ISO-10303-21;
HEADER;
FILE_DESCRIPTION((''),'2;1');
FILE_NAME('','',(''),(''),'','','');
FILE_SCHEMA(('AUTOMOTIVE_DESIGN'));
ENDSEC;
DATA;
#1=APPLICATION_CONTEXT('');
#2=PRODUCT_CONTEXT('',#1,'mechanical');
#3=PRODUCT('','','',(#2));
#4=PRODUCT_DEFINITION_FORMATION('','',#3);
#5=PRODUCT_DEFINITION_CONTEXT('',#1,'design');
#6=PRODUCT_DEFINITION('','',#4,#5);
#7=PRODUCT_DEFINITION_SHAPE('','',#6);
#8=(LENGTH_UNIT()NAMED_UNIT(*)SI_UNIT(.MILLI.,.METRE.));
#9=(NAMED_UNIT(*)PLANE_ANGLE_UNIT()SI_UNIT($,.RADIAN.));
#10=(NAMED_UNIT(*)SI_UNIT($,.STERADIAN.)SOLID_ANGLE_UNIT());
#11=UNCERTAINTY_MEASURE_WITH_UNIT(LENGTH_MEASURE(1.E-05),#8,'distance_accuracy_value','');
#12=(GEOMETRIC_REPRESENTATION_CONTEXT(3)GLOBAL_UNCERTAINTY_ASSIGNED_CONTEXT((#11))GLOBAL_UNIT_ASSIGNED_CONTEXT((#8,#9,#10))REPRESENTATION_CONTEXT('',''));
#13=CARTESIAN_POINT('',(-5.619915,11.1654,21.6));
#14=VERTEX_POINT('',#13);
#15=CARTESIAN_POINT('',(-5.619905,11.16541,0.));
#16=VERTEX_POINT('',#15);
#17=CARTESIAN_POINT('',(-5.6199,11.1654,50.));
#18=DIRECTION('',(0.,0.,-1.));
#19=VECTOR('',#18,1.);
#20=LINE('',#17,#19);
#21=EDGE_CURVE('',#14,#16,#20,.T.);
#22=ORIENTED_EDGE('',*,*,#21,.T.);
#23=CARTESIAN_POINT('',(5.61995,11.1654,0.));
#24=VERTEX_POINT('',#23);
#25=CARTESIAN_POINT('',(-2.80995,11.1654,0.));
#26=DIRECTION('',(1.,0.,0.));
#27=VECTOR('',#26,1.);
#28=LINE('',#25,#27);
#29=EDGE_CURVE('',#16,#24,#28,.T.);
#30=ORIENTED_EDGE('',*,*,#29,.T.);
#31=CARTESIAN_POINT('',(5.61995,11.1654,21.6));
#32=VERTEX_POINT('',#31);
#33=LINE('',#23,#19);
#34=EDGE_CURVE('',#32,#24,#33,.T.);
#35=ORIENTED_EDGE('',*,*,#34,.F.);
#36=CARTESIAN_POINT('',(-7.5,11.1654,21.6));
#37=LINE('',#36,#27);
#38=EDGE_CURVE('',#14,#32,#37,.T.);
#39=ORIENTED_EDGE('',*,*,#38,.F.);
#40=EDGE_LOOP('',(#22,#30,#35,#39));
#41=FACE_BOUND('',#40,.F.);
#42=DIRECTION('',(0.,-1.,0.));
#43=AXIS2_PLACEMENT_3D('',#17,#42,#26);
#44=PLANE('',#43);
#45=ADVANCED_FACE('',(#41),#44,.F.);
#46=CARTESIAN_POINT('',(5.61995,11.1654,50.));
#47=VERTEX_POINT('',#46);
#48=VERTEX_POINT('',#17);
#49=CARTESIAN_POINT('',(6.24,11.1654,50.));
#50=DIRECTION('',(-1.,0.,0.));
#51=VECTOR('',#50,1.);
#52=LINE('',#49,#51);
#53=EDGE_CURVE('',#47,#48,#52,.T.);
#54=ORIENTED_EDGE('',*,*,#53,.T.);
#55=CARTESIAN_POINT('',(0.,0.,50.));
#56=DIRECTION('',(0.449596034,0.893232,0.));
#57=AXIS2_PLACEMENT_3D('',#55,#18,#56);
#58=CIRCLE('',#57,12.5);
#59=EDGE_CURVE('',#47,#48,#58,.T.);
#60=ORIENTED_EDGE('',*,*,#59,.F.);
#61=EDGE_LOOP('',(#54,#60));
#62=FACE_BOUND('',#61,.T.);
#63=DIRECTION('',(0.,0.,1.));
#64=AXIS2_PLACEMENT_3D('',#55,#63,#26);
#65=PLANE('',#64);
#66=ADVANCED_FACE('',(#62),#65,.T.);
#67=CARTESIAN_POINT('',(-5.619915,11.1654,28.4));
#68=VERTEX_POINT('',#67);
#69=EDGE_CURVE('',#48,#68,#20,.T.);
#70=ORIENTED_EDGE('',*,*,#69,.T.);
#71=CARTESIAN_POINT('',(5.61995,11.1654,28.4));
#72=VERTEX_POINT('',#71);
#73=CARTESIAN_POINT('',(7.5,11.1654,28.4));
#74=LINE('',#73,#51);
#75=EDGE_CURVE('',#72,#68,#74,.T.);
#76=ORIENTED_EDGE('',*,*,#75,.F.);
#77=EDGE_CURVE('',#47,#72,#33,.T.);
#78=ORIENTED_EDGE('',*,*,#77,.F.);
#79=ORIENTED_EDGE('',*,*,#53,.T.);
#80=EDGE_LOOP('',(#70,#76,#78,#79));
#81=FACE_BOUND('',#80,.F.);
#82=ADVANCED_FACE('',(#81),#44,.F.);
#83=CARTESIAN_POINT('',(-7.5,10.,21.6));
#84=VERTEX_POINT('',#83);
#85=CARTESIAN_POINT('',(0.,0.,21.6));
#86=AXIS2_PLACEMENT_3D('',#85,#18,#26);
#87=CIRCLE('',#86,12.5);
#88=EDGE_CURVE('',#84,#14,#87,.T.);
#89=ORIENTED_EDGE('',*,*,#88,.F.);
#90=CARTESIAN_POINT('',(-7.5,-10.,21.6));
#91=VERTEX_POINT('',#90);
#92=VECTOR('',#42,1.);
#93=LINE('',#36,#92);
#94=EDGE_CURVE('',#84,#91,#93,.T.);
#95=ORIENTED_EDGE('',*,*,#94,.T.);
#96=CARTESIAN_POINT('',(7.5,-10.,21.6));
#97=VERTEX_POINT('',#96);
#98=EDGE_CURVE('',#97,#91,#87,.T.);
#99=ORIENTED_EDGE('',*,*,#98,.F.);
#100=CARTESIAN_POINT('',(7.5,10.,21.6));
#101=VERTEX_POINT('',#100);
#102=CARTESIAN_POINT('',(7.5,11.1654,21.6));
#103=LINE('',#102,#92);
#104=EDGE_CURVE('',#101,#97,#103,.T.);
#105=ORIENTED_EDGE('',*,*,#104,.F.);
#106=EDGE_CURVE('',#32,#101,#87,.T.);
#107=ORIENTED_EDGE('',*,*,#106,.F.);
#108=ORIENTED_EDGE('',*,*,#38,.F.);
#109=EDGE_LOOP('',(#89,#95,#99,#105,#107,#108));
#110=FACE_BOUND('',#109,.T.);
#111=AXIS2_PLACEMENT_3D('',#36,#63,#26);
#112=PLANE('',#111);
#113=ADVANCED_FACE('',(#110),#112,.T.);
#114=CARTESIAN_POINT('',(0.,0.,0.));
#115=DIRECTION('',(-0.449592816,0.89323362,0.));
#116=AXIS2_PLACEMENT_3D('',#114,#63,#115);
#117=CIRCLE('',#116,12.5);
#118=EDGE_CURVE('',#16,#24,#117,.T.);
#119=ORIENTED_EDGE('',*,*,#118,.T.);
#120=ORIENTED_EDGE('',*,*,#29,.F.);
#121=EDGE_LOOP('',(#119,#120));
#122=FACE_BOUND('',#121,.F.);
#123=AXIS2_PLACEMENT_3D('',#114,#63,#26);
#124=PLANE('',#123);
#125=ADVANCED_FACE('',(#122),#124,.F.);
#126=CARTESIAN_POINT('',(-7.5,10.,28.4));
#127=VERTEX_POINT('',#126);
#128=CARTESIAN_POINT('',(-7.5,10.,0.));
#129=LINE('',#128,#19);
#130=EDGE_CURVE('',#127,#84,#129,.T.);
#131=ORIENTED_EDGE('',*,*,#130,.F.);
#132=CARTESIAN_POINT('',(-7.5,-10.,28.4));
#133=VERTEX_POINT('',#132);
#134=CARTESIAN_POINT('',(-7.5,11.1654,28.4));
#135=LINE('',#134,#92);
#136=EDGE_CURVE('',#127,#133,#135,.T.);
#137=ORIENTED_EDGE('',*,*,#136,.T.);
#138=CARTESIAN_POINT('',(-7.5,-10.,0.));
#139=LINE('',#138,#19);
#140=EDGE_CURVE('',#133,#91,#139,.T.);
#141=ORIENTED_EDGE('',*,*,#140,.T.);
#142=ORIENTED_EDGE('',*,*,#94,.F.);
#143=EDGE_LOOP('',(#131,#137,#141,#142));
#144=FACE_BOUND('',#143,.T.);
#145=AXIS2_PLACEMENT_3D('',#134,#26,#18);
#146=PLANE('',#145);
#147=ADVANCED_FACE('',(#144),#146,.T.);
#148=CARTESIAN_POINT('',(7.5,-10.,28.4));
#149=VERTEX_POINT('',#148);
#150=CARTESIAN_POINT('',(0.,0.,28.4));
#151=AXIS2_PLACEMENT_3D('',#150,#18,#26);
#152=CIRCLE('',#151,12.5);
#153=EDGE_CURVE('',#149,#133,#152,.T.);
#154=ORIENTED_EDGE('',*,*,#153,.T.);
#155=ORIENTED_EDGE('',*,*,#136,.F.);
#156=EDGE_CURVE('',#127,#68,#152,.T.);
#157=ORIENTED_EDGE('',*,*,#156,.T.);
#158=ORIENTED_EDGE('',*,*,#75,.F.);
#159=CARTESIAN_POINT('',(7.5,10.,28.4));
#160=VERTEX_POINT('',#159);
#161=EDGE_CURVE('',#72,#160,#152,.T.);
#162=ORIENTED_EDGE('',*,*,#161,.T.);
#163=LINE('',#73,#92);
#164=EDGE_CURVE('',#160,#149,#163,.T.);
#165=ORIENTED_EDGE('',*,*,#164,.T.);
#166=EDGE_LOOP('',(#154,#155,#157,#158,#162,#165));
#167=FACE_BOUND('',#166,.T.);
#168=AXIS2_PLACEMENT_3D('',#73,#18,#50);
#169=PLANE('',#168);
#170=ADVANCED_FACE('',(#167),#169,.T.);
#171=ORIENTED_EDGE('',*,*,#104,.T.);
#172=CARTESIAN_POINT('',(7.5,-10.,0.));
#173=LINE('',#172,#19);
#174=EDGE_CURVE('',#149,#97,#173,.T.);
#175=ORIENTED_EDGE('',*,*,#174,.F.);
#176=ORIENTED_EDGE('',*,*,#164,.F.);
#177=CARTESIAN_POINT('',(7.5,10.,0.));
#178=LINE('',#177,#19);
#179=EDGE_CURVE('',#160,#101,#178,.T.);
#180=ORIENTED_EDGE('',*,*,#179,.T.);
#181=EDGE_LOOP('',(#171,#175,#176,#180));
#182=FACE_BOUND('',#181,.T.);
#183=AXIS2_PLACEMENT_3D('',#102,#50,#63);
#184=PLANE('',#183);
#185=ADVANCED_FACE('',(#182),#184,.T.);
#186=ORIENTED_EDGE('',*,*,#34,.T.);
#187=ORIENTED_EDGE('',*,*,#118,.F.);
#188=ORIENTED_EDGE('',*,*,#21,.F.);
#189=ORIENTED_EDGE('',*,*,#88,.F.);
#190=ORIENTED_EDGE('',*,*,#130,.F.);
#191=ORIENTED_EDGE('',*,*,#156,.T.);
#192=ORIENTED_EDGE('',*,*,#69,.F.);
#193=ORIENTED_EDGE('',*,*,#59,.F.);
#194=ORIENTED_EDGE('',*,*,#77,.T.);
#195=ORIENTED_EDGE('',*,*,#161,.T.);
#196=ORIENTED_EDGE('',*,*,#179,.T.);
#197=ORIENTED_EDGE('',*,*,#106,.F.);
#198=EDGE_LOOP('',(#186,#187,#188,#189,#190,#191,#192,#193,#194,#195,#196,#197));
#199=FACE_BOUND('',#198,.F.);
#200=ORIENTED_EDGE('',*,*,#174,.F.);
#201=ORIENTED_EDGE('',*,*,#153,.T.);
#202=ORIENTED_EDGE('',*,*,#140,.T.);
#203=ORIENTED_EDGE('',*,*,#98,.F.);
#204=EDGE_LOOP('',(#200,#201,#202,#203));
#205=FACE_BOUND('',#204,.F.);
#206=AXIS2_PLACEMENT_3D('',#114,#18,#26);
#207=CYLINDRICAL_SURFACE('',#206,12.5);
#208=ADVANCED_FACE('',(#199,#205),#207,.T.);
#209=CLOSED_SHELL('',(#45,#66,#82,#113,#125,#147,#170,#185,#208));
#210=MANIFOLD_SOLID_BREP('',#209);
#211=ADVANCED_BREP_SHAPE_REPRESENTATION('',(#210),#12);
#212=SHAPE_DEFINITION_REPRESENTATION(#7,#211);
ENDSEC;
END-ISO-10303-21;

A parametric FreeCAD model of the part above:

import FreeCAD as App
import Part
import Sketcher


def add_polygon(sketch, points):
    """Adds a closed chain of lines whose ends are joined by coincident constraints."""
    first, n = sketch.GeometryCount, len(points)
    for a, b in zip(points, points[1:] + points[:1]):
        sketch.addGeometry(Part.LineSegment(App.Vector(*a, 0), App.Vector(*b, 0)), False)
    for i in range(n):
        sketch.addConstraint(Sketcher.Constraint("Coincident", first + i, 2, first + (i + 1) % n, 1))

doc = App.newDocument("Part")
body = doc.addObject("PartDesign::Body", "Body")

# Sketch on XY plane
sketch1 = doc.addObject("Sketcher::SketchObject", "Sketch")
body.addObject(sketch1)
sketch1.AttachmentSupport = (doc.XY_Plane, [""])
sketch1.MapMode = "FlatFace"
sketch1.addGeometry(Part.Circle(App.Vector(0, 0, 0), App.Vector(0, 0, 1), 12), False)
sketch1.addConstraint(Sketcher.Constraint("Coincident", 0, 3, -1, 1))
sketch1.addConstraint(Sketcher.Constraint("Diameter", 0, 25.0))
pad1 = doc.addObject("PartDesign::Pad", "Pad")
body.addObject(pad1)
pad1.Profile = sketch1
pad1.Length = 50

# Sketch on XY plane
sketch2 = doc.addObject("Sketcher::SketchObject", "Sketch001")
body.addObject(sketch2)
sketch2.AttachmentSupport = (doc.XY_Plane, [""])
sketch2.MapMode = "FlatFace"
sketch2.AttachmentOffset = App.Placement(App.Vector(0, 0, 50), App.Rotation())
add_polygon(sketch2, [(-6, 17), (-6, 11), (6, 11), (6, 17)])  # lines 0-3
sketch2.addConstraint(Sketcher.Constraint("Vertical", 0))
sketch2.addConstraint(Sketcher.Constraint("Horizontal", 1))
sketch2.addConstraint(Sketcher.Constraint("Vertical", 2))
sketch2.addConstraint(Sketcher.Constraint("Horizontal", 3))
sketch2.addConstraint(Sketcher.Constraint("DistanceX", 1, 1, 1, 2, 11.86))
sketch2.addConstraint(Sketcher.Constraint("DistanceY", 0, 2, 0, 1, 5.649))
sketch2.addConstraint(Sketcher.Constraint("DistanceX", 0, 2, -1, 1, 5.62))
sketch2.addConstraint(Sketcher.Constraint("DistanceY", -1, 1, 0, 2, 11.1654))
pocket1 = doc.addObject("PartDesign::Pocket", "Pocket")
body.addObject(pocket1)
pocket1.Profile = sketch2
pocket1.Length = 64.3

# Sketch on XZ plane
sketch3 = doc.addObject("Sketcher::SketchObject", "Sketch002")
body.addObject(sketch3)
sketch3.AttachmentSupport = (doc.XZ_Plane, [""])
sketch3.MapMode = "FlatFace"
sketch3.AttachmentOffset = App.Placement(App.Vector(0, 0, -11.1654), App.Rotation())
add_polygon(sketch3, [(8, 22), (-8, 22), (-8, 28), (8, 28)])  # lines 0-3
sketch3.addConstraint(Sketcher.Constraint("Horizontal", 0))
sketch3.addConstraint(Sketcher.Constraint("Vertical", 1))
sketch3.addConstraint(Sketcher.Constraint("Horizontal", 2))
sketch3.addConstraint(Sketcher.Constraint("Vertical", 3))
sketch3.addConstraint(Sketcher.Constraint("DistanceX", 0, 2, 0, 1, 15.0))
sketch3.addConstraint(Sketcher.Constraint("DistanceY", 1, 1, 1, 2, 6.8))
sketch3.addConstraint(Sketcher.Constraint("DistanceX", 0, 2, -1, 1, 7.5))
sketch3.addConstraint(Sketcher.Constraint("DistanceY", -1, 1, 0, 2, 21.6))
pocket2 = doc.addObject("PartDesign::Pocket", "Pocket001")
body.addObject(pocket2)
pocket2.Profile = sketch3
pocket2.Length = 28.2625
pocket2.Reversed = True

doc.recompute()
